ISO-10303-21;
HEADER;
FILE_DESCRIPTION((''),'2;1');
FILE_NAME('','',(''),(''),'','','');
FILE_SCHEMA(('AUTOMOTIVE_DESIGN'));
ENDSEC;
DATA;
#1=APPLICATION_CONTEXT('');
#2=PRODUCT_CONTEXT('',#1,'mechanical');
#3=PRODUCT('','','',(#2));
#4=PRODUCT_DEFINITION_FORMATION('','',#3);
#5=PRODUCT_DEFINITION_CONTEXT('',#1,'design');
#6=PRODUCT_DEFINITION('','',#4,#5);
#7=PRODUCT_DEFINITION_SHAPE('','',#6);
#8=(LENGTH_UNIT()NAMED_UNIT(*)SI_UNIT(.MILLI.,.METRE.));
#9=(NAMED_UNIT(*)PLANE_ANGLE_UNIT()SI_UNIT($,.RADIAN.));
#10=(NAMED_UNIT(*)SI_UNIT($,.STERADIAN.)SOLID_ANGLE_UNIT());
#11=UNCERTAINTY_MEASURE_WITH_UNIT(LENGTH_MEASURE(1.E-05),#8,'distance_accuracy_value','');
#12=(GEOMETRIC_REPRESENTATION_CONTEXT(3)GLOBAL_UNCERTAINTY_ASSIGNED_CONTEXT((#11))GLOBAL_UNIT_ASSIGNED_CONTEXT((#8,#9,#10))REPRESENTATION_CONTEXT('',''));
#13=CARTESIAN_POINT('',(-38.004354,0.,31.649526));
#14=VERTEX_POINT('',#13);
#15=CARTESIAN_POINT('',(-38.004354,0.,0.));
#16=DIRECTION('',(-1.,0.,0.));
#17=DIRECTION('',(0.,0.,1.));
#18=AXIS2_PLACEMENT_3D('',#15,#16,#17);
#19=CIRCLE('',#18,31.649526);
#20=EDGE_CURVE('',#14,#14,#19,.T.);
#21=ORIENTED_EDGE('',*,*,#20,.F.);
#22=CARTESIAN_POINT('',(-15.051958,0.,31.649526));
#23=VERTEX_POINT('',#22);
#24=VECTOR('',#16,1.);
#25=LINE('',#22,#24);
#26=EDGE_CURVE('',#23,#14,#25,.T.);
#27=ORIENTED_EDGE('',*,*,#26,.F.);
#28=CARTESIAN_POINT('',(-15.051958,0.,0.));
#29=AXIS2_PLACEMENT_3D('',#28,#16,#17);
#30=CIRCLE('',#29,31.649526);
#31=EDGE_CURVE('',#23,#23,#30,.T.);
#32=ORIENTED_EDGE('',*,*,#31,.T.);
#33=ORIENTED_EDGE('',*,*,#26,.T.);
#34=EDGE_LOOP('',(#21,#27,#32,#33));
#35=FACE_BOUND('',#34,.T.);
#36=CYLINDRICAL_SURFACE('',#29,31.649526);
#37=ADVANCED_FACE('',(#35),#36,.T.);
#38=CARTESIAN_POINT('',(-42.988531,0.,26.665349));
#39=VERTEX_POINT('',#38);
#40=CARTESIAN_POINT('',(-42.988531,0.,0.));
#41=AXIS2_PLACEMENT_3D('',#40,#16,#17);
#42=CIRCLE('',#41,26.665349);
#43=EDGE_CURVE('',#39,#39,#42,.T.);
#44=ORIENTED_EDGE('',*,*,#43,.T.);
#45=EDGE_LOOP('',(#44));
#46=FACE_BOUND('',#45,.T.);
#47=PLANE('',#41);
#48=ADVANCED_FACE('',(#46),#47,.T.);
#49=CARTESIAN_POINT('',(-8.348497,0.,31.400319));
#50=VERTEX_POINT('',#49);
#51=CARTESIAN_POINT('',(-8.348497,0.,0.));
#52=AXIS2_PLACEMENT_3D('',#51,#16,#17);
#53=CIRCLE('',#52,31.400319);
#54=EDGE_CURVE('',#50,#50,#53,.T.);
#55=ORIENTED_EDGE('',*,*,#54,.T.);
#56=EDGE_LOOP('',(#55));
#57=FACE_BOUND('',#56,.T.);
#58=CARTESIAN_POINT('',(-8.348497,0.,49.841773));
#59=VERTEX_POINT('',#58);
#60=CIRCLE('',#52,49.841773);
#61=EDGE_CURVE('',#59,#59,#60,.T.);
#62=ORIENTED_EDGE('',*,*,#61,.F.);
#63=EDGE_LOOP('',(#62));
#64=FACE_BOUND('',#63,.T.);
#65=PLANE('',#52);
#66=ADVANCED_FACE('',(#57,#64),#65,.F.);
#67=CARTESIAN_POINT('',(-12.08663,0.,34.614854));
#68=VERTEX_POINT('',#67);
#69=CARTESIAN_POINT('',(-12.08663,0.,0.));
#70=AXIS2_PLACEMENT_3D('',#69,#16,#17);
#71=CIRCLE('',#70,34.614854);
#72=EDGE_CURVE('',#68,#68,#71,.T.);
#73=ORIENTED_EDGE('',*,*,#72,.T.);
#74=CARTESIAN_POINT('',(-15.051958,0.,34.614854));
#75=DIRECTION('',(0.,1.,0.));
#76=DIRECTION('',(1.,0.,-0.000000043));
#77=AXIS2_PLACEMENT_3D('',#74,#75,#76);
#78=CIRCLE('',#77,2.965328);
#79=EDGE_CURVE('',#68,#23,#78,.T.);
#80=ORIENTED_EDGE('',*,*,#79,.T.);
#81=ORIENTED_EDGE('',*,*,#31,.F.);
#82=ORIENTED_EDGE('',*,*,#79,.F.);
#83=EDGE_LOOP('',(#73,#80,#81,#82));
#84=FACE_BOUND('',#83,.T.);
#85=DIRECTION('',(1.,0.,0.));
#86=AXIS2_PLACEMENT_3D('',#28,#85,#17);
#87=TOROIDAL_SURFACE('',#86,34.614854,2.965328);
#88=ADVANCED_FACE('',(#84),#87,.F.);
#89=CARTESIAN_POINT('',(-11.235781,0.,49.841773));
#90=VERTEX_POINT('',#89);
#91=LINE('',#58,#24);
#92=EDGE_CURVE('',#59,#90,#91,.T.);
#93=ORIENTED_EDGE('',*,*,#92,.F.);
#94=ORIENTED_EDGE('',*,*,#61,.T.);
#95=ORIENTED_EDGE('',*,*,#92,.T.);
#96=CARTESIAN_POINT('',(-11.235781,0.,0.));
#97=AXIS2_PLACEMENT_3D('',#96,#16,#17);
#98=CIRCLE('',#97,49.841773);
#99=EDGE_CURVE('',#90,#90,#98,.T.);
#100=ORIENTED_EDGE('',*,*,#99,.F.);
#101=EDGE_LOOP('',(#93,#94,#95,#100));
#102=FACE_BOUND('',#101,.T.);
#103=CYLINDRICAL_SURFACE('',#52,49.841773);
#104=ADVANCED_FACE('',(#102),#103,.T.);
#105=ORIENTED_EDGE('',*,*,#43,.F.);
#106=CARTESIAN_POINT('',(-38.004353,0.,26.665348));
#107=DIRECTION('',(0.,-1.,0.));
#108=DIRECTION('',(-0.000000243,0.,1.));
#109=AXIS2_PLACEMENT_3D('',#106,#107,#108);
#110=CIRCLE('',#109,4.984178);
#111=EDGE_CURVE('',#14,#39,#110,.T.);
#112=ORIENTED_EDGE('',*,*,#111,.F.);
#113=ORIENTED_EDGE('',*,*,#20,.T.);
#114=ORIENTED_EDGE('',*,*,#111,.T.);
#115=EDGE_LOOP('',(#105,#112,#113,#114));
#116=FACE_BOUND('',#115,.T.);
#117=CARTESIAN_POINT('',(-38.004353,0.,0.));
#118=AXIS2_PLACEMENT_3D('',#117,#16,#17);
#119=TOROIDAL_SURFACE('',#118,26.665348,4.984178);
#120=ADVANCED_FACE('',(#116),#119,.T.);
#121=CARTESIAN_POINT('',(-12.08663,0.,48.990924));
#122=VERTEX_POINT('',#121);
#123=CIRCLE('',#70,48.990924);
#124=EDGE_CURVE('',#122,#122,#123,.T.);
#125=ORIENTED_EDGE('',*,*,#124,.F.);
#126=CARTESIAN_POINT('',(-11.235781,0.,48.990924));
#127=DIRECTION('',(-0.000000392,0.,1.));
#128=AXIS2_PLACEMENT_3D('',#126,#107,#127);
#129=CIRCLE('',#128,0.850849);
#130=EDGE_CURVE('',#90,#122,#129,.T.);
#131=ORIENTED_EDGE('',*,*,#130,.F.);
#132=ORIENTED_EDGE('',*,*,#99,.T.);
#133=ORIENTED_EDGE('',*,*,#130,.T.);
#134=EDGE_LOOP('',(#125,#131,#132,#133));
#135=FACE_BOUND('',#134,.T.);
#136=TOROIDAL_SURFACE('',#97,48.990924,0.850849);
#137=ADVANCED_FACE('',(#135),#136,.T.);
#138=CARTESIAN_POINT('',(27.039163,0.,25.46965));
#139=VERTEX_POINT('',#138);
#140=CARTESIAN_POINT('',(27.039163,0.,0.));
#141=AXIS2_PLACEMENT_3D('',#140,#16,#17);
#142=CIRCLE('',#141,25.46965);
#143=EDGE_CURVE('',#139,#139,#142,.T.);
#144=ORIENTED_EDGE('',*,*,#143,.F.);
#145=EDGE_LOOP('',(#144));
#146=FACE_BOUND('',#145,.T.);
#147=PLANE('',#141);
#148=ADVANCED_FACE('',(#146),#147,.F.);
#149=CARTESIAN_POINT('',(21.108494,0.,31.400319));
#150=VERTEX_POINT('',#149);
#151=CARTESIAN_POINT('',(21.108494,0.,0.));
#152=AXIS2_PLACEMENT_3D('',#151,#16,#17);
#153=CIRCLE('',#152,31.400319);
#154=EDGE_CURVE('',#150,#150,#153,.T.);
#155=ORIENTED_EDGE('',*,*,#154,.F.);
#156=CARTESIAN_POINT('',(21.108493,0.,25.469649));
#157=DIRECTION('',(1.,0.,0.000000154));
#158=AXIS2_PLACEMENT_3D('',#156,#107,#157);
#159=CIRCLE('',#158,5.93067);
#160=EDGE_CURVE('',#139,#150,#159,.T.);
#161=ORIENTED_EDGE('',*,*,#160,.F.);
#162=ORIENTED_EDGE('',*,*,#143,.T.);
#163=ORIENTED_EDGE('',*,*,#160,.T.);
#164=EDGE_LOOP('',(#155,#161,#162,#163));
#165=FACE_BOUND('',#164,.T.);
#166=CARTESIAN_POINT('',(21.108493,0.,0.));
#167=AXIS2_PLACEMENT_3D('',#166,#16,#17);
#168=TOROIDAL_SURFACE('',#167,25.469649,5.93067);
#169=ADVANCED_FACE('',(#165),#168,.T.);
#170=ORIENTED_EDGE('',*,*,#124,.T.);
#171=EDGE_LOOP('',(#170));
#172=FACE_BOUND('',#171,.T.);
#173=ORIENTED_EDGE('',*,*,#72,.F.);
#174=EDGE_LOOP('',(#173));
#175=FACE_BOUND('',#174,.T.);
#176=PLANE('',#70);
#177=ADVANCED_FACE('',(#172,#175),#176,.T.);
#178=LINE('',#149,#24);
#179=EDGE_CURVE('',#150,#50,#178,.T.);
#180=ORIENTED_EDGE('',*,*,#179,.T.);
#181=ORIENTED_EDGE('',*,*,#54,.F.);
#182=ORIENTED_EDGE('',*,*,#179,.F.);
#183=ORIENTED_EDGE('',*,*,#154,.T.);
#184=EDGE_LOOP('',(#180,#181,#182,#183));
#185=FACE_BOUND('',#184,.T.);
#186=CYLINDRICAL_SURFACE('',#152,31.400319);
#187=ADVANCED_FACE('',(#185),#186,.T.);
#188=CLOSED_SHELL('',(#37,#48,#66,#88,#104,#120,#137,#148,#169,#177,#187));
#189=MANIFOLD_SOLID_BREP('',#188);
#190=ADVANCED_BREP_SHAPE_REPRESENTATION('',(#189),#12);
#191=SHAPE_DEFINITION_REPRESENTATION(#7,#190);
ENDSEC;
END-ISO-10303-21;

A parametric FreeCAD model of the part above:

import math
import FreeCAD as App
import Part
import Sketcher

V = App.Vector
Q = App.Units.Quantity

doc = App.newDocument("Part")
body = doc.addObject("PartDesign::Body", "Body")

sketch1 = body.newObject("Sketcher::SketchObject", "Sketch")
sketch1.AttachmentSupport = (doc.getObject("XZ_Plane"), [""])
sketch1.MapMode = "FlatFace"
sketch1.addGeometry([
    Part.LineSegment(V(-42.988531, 26.665349, 0), V(-42.988531, 0, 0)),
    Part.LineSegment(V(-42.988531, 0, 0), V(27.039163, 0, 0)),
    Part.LineSegment(V(27.039163, 0, 0), V(27.039163, 25.46965, 0)),
    Part.ArcOfCircle(Part.Circle(V(21.108493, 25.469649, 0), V(0, 0, 1), 5.93067), math.radians(0.000009), math.radians(89.999991)),
    Part.LineSegment(V(21.108494, 31.400319, 0), V(-8.348497, 31.400319, 0)),
    Part.LineSegment(V(-8.348497, 31.400319, 0), V(-8.348497, 49.841773, 0)),
    Part.LineSegment(V(-8.348497, 49.841773, 0), V(-11.235781, 49.841773, 0)),
    Part.ArcOfCircle(Part.Circle(V(-11.235781, 48.990924, 0), V(0, 0, 1), 0.850849), math.radians(90.000022), math.radians(179.999978)),
    Part.LineSegment(V(-12.08663, 48.990924, 0), V(-12.08663, 34.614854, 0)),
    Part.ArcOfCircle(Part.Circle(V(-15.051958, 34.614854, 0), V(0, 0, 1), 2.965328), math.radians(-89.999998), math.radians(-0.000002)),
    Part.LineSegment(V(-15.051958, 31.649526, 0), V(-38.004354, 31.649526, 0)),
    Part.ArcOfCircle(Part.Circle(V(-38.004353, 26.665348, 0), V(0, 0, 1), 4.984178), math.radians(90.000014), math.radians(179.999986)),
], False)
sketch1.addConstraint([
    Sketcher.Constraint("Coincident", 0, 2, 1, 1),
    Sketcher.Constraint("Coincident", 1, 2, 2, 1),
    Sketcher.Constraint("Tangent", 2, 2, 3, 1),
    Sketcher.Constraint("Tangent", 3, 2, 4, 1),
    Sketcher.Constraint("Coincident", 4, 2, 5, 1),
    Sketcher.Constraint("Coincident", 5, 2, 6, 1),
    Sketcher.Constraint("Tangent", 6, 2, 7, 1),
    Sketcher.Constraint("Tangent", 7, 2, 8, 1),
    Sketcher.Constraint("Tangent", 8, 2, 9, 2),
    Sketcher.Constraint("Tangent", 9, 1, 10, 1),
    Sketcher.Constraint("Tangent", 10, 2, 11, 1),
    Sketcher.Constraint("Tangent", 11, 2, 0, 1),
    Sketcher.Constraint("Vertical", 0),
    Sketcher.Constraint("Horizontal", 1),
    Sketcher.Constraint("Vertical", 2),
    Sketcher.Constraint("Horizontal", 4),
    Sketcher.Constraint("Vertical", 5),
    Sketcher.Constraint("Horizontal", 6),
    Sketcher.Constraint("Vertical", 8),
    Sketcher.Constraint("Horizontal", 10),
    Sketcher.Constraint("PointOnObject", 0, 2, -1),
    Sketcher.Constraint("Radius", 3, Q("5.93067 mm")),
    Sketcher.Constraint("Radius", 7, Q("0.850849 mm")),
    Sketcher.Constraint("Radius", 9, Q("2.965328 mm")),
    Sketcher.Constraint("Radius", 11, Q("4.984178 mm")),
    Sketcher.Constraint("DistanceX", 4, 2, 4, 1, Q("29.456991 mm")),
    Sketcher.Constraint("DistanceY", 0, 2, 0, 1, Q("26.665349 mm")),
    Sketcher.Constraint("DistanceY", 2, 1, 2, 2, Q("25.46965 mm")),
    Sketcher.Constraint("DistanceY", 8, 2, 8, 1, Q("14.37607 mm")),
    Sketcher.Constraint("DistanceX", 1, 1, 1, 2, Q("70.027694 mm")),
    Sketcher.Constraint("DistanceX", 6, 2, 6, 1, Q("2.887284 mm")),
    Sketcher.Constraint("DistanceX", 7, 3, -1, 1, Q("11.235781 mm")),
])
revolution = body.newObject("PartDesign::Revolution", "Revolution")
revolution.Profile = sketch1
revolution.ReferenceAxis = (sketch1, ["H_Axis"])
revolution.Angle = 360

doc.recompute()
